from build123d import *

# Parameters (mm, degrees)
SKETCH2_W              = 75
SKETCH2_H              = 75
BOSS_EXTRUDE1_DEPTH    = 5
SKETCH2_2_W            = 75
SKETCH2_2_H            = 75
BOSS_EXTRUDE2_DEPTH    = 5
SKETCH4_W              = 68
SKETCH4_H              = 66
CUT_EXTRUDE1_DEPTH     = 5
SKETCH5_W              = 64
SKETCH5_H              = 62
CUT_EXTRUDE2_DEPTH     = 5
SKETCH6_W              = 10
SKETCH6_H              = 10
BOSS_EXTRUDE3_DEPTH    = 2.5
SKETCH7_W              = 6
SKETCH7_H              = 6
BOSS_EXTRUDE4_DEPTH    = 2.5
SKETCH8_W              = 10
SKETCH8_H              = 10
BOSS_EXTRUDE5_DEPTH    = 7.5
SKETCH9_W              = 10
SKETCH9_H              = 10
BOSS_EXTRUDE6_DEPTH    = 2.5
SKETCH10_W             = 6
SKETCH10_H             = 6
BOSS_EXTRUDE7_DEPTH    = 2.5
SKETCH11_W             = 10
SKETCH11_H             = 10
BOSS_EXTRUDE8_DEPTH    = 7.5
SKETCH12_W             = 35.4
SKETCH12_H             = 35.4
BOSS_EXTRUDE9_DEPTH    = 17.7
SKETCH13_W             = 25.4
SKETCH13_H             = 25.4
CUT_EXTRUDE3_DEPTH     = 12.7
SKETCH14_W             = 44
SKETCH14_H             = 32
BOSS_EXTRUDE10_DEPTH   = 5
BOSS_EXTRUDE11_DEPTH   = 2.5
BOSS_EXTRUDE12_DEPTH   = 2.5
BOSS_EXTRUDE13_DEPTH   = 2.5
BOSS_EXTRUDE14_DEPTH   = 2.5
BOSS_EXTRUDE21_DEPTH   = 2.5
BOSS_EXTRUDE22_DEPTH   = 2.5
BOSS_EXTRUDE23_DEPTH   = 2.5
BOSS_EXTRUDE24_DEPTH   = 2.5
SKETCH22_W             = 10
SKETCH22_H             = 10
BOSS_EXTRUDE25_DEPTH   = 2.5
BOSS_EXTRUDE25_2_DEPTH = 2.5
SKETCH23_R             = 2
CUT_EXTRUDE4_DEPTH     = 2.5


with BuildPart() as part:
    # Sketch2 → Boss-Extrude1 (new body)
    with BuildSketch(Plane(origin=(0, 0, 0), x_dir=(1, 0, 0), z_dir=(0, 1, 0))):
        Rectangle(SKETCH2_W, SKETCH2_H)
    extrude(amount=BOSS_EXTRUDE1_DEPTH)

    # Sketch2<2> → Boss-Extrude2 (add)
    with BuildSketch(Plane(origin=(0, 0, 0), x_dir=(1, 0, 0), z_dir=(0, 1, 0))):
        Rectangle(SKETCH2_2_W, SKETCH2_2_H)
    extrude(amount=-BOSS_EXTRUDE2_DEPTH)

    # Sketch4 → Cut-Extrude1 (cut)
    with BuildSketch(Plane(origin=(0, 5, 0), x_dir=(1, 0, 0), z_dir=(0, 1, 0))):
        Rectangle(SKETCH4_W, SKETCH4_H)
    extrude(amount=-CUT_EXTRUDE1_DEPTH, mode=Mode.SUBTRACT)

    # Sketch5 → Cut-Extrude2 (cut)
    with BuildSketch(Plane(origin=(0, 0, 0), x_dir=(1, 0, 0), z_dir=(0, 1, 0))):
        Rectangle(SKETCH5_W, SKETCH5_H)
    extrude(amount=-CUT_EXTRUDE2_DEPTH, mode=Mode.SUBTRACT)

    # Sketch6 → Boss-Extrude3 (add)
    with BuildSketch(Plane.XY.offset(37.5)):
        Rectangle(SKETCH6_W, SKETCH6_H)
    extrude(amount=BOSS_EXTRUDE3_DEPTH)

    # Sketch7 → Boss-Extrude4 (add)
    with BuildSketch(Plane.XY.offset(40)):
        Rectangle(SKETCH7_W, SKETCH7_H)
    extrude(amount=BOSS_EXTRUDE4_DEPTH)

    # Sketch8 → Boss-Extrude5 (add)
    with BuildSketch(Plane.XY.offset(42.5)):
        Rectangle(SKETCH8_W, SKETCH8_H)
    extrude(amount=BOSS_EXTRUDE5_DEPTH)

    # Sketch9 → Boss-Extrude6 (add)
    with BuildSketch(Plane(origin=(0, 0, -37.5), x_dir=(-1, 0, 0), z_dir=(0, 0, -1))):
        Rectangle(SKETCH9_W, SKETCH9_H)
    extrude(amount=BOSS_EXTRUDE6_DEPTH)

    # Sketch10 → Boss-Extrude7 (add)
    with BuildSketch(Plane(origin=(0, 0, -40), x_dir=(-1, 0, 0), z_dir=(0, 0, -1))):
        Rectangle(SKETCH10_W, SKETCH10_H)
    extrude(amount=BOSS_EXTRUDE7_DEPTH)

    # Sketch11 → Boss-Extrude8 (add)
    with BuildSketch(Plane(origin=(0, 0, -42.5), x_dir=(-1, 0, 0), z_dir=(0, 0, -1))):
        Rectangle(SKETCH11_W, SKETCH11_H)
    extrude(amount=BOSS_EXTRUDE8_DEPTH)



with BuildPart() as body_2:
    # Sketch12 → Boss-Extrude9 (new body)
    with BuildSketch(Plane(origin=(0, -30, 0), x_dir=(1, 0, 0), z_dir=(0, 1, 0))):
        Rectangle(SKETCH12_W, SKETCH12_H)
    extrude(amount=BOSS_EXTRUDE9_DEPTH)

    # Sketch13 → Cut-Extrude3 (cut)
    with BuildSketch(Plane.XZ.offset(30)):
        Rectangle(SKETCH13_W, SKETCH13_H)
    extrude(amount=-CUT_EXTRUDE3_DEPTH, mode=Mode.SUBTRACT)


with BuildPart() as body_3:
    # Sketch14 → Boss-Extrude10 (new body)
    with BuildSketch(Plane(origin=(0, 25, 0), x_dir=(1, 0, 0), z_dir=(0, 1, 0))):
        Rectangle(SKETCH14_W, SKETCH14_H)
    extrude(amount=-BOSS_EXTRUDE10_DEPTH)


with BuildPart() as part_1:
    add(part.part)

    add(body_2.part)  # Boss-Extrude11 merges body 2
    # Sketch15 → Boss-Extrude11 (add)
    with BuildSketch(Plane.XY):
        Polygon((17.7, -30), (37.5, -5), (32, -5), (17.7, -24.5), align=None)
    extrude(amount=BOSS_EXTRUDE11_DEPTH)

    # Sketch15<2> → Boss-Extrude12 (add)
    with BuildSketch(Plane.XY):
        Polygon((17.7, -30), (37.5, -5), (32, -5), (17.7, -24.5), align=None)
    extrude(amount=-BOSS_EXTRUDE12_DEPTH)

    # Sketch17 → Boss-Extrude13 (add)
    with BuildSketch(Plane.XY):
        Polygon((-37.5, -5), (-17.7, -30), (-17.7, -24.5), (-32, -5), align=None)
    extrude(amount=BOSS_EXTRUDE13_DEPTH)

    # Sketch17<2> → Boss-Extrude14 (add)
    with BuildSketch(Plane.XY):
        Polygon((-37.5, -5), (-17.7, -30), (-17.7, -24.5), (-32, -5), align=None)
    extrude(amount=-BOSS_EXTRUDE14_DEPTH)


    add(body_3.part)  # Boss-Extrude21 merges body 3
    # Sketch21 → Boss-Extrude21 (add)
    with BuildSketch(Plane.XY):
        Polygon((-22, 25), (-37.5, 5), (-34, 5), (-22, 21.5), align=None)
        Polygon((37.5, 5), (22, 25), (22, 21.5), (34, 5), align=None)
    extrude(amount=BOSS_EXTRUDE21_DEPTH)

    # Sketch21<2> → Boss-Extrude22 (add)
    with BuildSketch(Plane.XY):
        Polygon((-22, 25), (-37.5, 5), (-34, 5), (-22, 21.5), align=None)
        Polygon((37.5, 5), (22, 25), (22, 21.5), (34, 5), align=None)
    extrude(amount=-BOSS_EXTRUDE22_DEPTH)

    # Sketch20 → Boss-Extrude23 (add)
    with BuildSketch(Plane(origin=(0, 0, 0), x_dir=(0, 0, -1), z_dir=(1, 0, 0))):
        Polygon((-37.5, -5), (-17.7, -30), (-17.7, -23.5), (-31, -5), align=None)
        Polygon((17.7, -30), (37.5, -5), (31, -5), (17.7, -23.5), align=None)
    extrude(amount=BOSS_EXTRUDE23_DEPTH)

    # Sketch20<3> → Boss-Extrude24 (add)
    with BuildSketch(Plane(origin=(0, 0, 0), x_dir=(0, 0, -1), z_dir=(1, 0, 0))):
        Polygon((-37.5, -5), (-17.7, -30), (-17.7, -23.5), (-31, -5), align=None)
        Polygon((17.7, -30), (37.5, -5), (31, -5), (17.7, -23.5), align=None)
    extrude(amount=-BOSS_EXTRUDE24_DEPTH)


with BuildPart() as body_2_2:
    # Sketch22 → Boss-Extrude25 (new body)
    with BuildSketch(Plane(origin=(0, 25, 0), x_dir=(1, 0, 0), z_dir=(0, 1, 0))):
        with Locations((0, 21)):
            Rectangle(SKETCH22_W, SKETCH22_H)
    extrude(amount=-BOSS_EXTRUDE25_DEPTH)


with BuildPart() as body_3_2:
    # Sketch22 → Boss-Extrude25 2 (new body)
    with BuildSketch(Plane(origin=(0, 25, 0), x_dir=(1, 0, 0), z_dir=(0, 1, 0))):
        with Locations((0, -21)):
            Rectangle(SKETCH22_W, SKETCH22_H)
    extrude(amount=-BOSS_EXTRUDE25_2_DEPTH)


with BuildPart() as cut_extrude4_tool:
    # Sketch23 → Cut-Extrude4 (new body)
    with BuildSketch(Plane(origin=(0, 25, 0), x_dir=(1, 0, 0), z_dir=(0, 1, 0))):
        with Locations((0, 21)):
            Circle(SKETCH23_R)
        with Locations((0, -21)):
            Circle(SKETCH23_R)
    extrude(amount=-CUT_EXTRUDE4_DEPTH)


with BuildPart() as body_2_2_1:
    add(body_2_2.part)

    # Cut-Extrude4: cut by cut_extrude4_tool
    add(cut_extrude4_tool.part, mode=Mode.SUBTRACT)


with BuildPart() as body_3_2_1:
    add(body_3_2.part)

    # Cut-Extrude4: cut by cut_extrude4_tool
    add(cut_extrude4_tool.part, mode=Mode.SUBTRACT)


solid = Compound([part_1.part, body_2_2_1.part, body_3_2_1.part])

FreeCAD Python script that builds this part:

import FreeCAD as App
import Part
import Sketcher
from FreeCAD import Vector

doc = App.newDocument("Part")
body = doc.addObject("PartDesign::Body", "Body")

# Sketch on XZ plane
sketch1 = body.newObject("Sketcher::SketchObject", "Sketch")
sketch1.AttachmentSupport = (doc.getObject("XZ_Plane"), [""])
sketch1.MapMode = "FlatFace"
sketch1.addGeometry(Part.LineSegment(Vector(-38, -38, 0), Vector(-38, 38, 0)), False)
sketch1.addGeometry(Part.LineSegment(Vector(-38, 38, 0), Vector(38, 38, 0)), False)
sketch1.addGeometry(Part.LineSegment(Vector(38, 38, 0), Vector(38, -38, 0)), False)
sketch1.addGeometry(Part.LineSegment(Vector(38, -38, 0), Vector(-38, -38, 0)), False)
sketch1.addConstraint(Sketcher.Constraint("Coincident", 0, 2, 1, 1))
sketch1.addConstraint(Sketcher.Constraint("Coincident", 1, 2, 2, 1))
sketch1.addConstraint(Sketcher.Constraint("Coincident", 2, 2, 3, 1))
sketch1.addConstraint(Sketcher.Constraint("Coincident", 3, 2, 0, 1))
sketch1.addConstraint(Sketcher.Constraint("Vertical", 0))
sketch1.addConstraint(Sketcher.Constraint("Horizontal", 1))
sketch1.addConstraint(Sketcher.Constraint("Vertical", 2))
sketch1.addConstraint(Sketcher.Constraint("Horizontal", 3))
sketch1.addConstraint(Sketcher.Constraint("Symmetric", 0, 2, 2, 2, -1, 1))
sketch1.addConstraint(Sketcher.Constraint("Equal", 3, 0))
sketch1.addConstraint(Sketcher.Constraint("DistanceX", 1, 1, 1, 2, 75.0))
pad1 = body.newObject("PartDesign::Pad", "Pad")
pad1.Profile = sketch1
pad1.Length = 5
pad1.Reversed = True

# Sketch on XZ plane
sketch2 = body.newObject("Sketcher::SketchObject", "Sketch001")
sketch2.AttachmentSupport = (doc.getObject("XZ_Plane"), [""])
sketch2.MapMode = "FlatFace"
sketch2.addGeometry(Part.LineSegment(Vector(-38, -38, 0), Vector(-38, 38, 0)), False)
sketch2.addGeometry(Part.LineSegment(Vector(-38, 38, 0), Vector(38, 38, 0)), False)
sketch2.addGeometry(Part.LineSegment(Vector(38, 38, 0), Vector(38, -38, 0)), False)
sketch2.addGeometry(Part.LineSegment(Vector(38, -38, 0), Vector(-38, -38, 0)), False)
sketch2.addConstraint(Sketcher.Constraint("Coincident", 0, 2, 1, 1))
sketch2.addConstraint(Sketcher.Constraint("Coincident", 1, 2, 2, 1))
sketch2.addConstraint(Sketcher.Constraint("Coincident", 2, 2, 3, 1))
sketch2.addConstraint(Sketcher.Constraint("Coincident", 3, 2, 0, 1))
sketch2.addConstraint(Sketcher.Constraint("Vertical", 0))
sketch2.addConstraint(Sketcher.Constraint("Horizontal", 1))
sketch2.addConstraint(Sketcher.Constraint("Vertical", 2))
sketch2.addConstraint(Sketcher.Constraint("Horizontal", 3))
sketch2.addConstraint(Sketcher.Constraint("Symmetric", 0, 2, 2, 2, -1, 1))
sketch2.addConstraint(Sketcher.Constraint("Equal", 3, 0))
sketch2.addConstraint(Sketcher.Constraint("DistanceX", 1, 1, 1, 2, 75.0))
pad2 = body.newObject("PartDesign::Pad", "Pad001")
pad2.Profile = sketch2
pad2.Length = 5

# Sketch on XZ plane
sketch3 = body.newObject("Sketcher::SketchObject", "Sketch002")
sketch3.AttachmentSupport = (doc.getObject("XZ_Plane"), [""])
sketch3.MapMode = "FlatFace"
sketch3.AttachmentOffset = App.Placement(Vector(0, 0, -5), App.Rotation())
sketch3.addGeometry(Part.LineSegment(Vector(-34, -33, 0), Vector(-34, 33, 0)), False)
sketch3.addGeometry(Part.LineSegment(Vector(-34, 33, 0), Vector(34, 33, 0)), False)
sketch3.addGeometry(Part.LineSegment(Vector(34, 33, 0), Vector(34, -33, 0)), False)
sketch3.addGeometry(Part.LineSegment(Vector(34, -33, 0), Vector(-34, -33, 0)), False)
sketch3.addConstraint(Sketcher.Constraint("Coincident", 0, 2, 1, 1))
sketch3.addConstraint(Sketcher.Constraint("Coincident", 1, 2, 2, 1))
sketch3.addConstraint(Sketcher.Constraint("Coincident", 2, 2, 3, 1))
sketch3.addConstraint(Sketcher.Constraint("Coincident", 3, 2, 0, 1))
sketch3.addConstraint(Sketcher.Constraint("Vertical", 0))
sketch3.addConstraint(Sketcher.Constraint("Horizontal", 1))
sketch3.addConstraint(Sketcher.Constraint("Vertical", 2))
sketch3.addConstraint(Sketcher.Constraint("Horizontal", 3))
sketch3.addConstraint(Sketcher.Constraint("Symmetric", 0, 2, 2, 2, -1, 1))
sketch3.addConstraint(Sketcher.Constraint("DistanceX", 1, 1, 1, 2, 68.0))
sketch3.addConstraint(Sketcher.Constraint("DistanceY", 0, 1, 0, 2, 66.0))
pocket1 = body.newObject("PartDesign::Pocket", "Pocket")
pocket1.Profile = sketch3
pocket1.Length = 5
pocket1.Reversed = True

# Sketch on XZ plane
sketch4 = body.newObject("Sketcher::SketchObject", "Sketch003")
sketch4.AttachmentSupport = (doc.getObject("XZ_Plane"), [""])
sketch4.MapMode = "FlatFace"
sketch4.addGeometry(Part.LineSegment(Vector(-32, -31, 0), Vector(-32, 31, 0)), False)
sketch4.addGeometry(Part.LineSegment(Vector(-32, 31, 0), Vector(32, 31, 0)), False)
sketch4.addGeometry(Part.LineSegment(Vector(32, 31, 0), Vector(32, -31, 0)), False)
sketch4.addGeometry(Part.LineSegment(Vector(32, -31, 0), Vector(-32, -31, 0)), False)
sketch4.addConstraint(Sketcher.Constraint("Coincident", 0, 2, 1, 1))
sketch4.addConstraint(Sketcher.Constraint("Coincident", 1, 2, 2, 1))
sketch4.addConstraint(Sketcher.Constraint("Coincident", 2, 2, 3, 1))
sketch4.addConstraint(Sketcher.Constraint("Coincident", 3, 2, 0, 1))
sketch4.addConstraint(Sketcher.Constraint("Vertical", 0))
sketch4.addConstraint(Sketcher.Constraint("Horizontal", 1))
sketch4.addConstraint(Sketcher.Constraint("Vertical", 2))
sketch4.addConstraint(Sketcher.Constraint("Horizontal", 3))
sketch4.addConstraint(Sketcher.Constraint("Symmetric", 0, 2, 2, 2, -1, 1))
sketch4.addConstraint(Sketcher.Constraint("DistanceX", 1, 1, 1, 2, 64.0))
sketch4.addConstraint(Sketcher.Constraint("DistanceY", 0, 1, 0, 2, 62.0))
pocket2 = body.newObject("PartDesign::Pocket", "Pocket001")
pocket2.Profile = sketch4
pocket2.Length = 5
pocket2.Reversed = True

# Sketch on XY plane
sketch5 = body.newObject("Sketcher::SketchObject", "Sketch004")
sketch5.AttachmentSupport = (doc.getObject("XY_Plane"), [""])
sketch5.MapMode = "FlatFace"
sketch5.AttachmentOffset = App.Placement(Vector(0, 0, 37.5), App.Rotation())
sketch5.addGeometry(Part.LineSegment(Vector(-5, 5, 0), Vector(-5, -5, 0)), False)
sketch5.addGeometry(Part.LineSegment(Vector(-5, -5, 0), Vector(5, -5, 0)), False)
sketch5.addGeometry(Part.LineSegment(Vector(5, -5, 0), Vector(5, 5, 0)), False)
sketch5.addGeometry(Part.LineSegment(Vector(5, 5, 0), Vector(-5, 5, 0)), False)
sketch5.addConstraint(Sketcher.Constraint("Coincident", 0, 2, 1, 1))
sketch5.addConstraint(Sketcher.Constraint("Coincident", 1, 2, 2, 1))
sketch5.addConstraint(Sketcher.Constraint("Coincident", 2, 2, 3, 1))
sketch5.addConstraint(Sketcher.Constraint("Coincident", 3, 2, 0, 1))
sketch5.addConstraint(Sketcher.Constraint("Vertical", 0))
sketch5.addConstraint(Sketcher.Constraint("Horizontal", 1))
sketch5.addConstraint(Sketcher.Constraint("Vertical", 2))
sketch5.addConstraint(Sketcher.Constraint("Horizontal", 3))
sketch5.addConstraint(Sketcher.Constraint("Symmetric", 0, 2, 2, 2, -1, 1))
sketch5.addConstraint(Sketcher.Constraint("Equal", 3, 0))
sketch5.addConstraint(Sketcher.Constraint("DistanceX", 1, 1, 1, 2, 10.0))
pad3 = body.newObject("PartDesign::Pad", "Pad002")
pad3.Profile = sketch5
pad3.Length = 2.5

# Sketch on XY plane
sketch6 = body.newObject("Sketcher::SketchObject", "Sketch005")
sketch6.AttachmentSupport = (doc.getObject("XY_Plane"), [""])
sketch6.MapMode = "FlatFace"
sketch6.AttachmentOffset = App.Placement(Vector(0, 0, 40), App.Rotation())
sketch6.addGeometry(Part.LineSegment(Vector(-3, 3, 0), Vector(-3, -3, 0)), False)
sketch6.addGeometry(Part.LineSegment(Vector(-3, -3, 0), Vector(3, -3, 0)), False)
sketch6.addGeometry(Part.LineSegment(Vector(3, -3, 0), Vector(3, 3, 0)), False)
sketch6.addGeometry(Part.LineSegment(Vector(3, 3, 0), Vector(-3, 3, 0)), False)
sketch6.addConstraint(Sketcher.Constraint("Coincident", 0, 2, 1, 1))
sketch6.addConstraint(Sketcher.Constraint("Coincident", 1, 2, 2, 1))
sketch6.addConstraint(Sketcher.Constraint("Coincident", 2, 2, 3, 1))
sketch6.addConstraint(Sketcher.Constraint("Coincident", 3, 2, 0, 1))
sketch6.addConstraint(Sketcher.Constraint("Vertical", 0))
sketch6.addConstraint(Sketcher.Constraint("Horizontal", 1))
sketch6.addConstraint(Sketcher.Constraint("Vertical", 2))
sketch6.addConstraint(Sketcher.Constraint("Horizontal", 3))
sketch6.addConstraint(Sketcher.Constraint("Symmetric", 0, 2, 2, 2, -1, 1))
sketch6.addConstraint(Sketcher.Constraint("Equal", 3, 0))
sketch6.addConstraint(Sketcher.Constraint("DistanceX", 1, 1, 1, 2, 6.0))
pad4 = body.newObject("PartDesign::Pad", "Pad003")
pad4.Profile = sketch6
pad4.Length = 2.5

# Sketch on XY plane
sketch7 = body.newObject("Sketcher::SketchObject", "Sketch006")
sketch7.AttachmentSupport = (doc.getObject("XY_Plane"), [""])
sketch7.MapMode = "FlatFace"
sketch7.AttachmentOffset = App.Placement(Vector(0, 0, 42.5), App.Rotation())
sketch7.addGeometry(Part.LineSegment(Vector(-5, 5, 0), Vector(-5, -5, 0)), False)
sketch7.addGeometry(Part.LineSegment(Vector(-5, -5, 0), Vector(5, -5, 0)), False)
sketch7.addGeometry(Part.LineSegment(Vector(5, -5, 0), Vector(5, 5, 0)), False)
sketch7.addGeometry(Part.LineSegment(Vector(5, 5, 0), Vector(-5, 5, 0)), False)
sketch7.addConstraint(Sketcher.Constraint("Coincident", 0, 2, 1, 1))
sketch7.addConstraint(Sketcher.Constraint("Coincident", 1, 2, 2, 1))
sketch7.addConstraint(Sketcher.Constraint("Coincident", 2, 2, 3, 1))
sketch7.addConstraint(Sketcher.Constraint("Coincident", 3, 2, 0, 1))
sketch7.addConstraint(Sketcher.Constraint("Vertical", 0))
sketch7.addConstraint(Sketcher.Constraint("Horizontal", 1))
sketch7.addConstraint(Sketcher.Constraint("Vertical", 2))
sketch7.addConstraint(Sketcher.Constraint("Horizontal", 3))
sketch7.addConstraint(Sketcher.Constraint("Symmetric", 0, 2, 2, 2, -1, 1))
sketch7.addConstraint(Sketcher.Constraint("Equal", 3, 0))
sketch7.addConstraint(Sketcher.Constraint("DistanceX", 1, 1, 1, 2, 10.0))
pad5 = body.newObject("PartDesign::Pad", "Pad004")
pad5.Profile = sketch7
pad5.Length = 7.5

# Sketch on XY plane
sketch8 = body.newObject("Sketcher::SketchObject", "Sketch007")
sketch8.AttachmentSupport = (doc.getObject("XY_Plane"), [""])
sketch8.MapMode = "FlatFace"
sketch8.AttachmentOffset = App.Placement(Vector(0, 0, -37.5), App.Rotation())
sketch8.addGeometry(Part.LineSegment(Vector(5, 5, 0), Vector(5, -5, 0)), False)
sketch8.addGeometry(Part.LineSegment(Vector(5, -5, 0), Vector(-5, -5, 0)), False)
sketch8.addGeometry(Part.LineSegment(Vector(-5, -5, 0), Vector(-5, 5, 0)), False)
sketch8.addGeometry(Part.LineSegment(Vector(-5, 5, 0), Vector(5, 5, 0)), False)
sketch8.addConstraint(Sketcher.Constraint("Coincident", 0, 2, 1, 1))
sketch8.addConstraint(Sketcher.Constraint("Coincident", 1, 2, 2, 1))
sketch8.addConstraint(Sketcher.Constraint("Coincident", 2, 2, 3, 1))
sketch8.addConstraint(Sketcher.Constraint("Coincident", 3, 2, 0, 1))
sketch8.addConstraint(Sketcher.Constraint("Vertical", 0))
sketch8.addConstraint(Sketcher.Constraint("Horizontal", 1))
sketch8.addConstraint(Sketcher.Constraint("Vertical", 2))
sketch8.addConstraint(Sketcher.Constraint("Horizontal", 3))
sketch8.addConstraint(Sketcher.Constraint("Symmetric", 0, 2, 2, 2, -1, 1))
sketch8.addConstraint(Sketcher.Constraint("Equal", 3, 0))
sketch8.addConstraint(Sketcher.Constraint("DistanceX", 1, 2, 1, 1, 10.0))
pad6 = body.newObject("PartDesign::Pad", "Pad005")
pad6.Profile = sketch8
pad6.Length = 2.5
pad6.Reversed = True

# Sketch on XY plane
sketch9 = body.newObject("Sketcher::SketchObject", "Sketch008")
sketch9.AttachmentSupport = (doc.getObject("XY_Plane"), [""])
sketch9.MapMode = "FlatFace"
sketch9.AttachmentOffset = App.Placement(Vector(0, 0, -40), App.Rotation())
sketch9.addGeometry(Part.LineSegment(Vector(3, 3, 0), Vector(3, -3, 0)), False)
sketch9.addGeometry(Part.LineSegment(Vector(3, -3, 0), Vector(-3, -3, 0)), False)
sketch9.addGeometry(Part.LineSegment(Vector(-3, -3, 0), Vector(-3, 3, 0)), False)
sketch9.addGeometry(Part.LineSegment(Vector(-3, 3, 0), Vector(3, 3, 0)), False)
sketch9.addConstraint(Sketcher.Constraint("Coincident", 0, 2, 1, 1))
sketch9.addConstraint(Sketcher.Constraint("Coincident", 1, 2, 2, 1))
sketch9.addConstraint(Sketcher.Constraint("Coincident", 2, 2, 3, 1))
sketch9.addConstraint(Sketcher.Constraint("Coincident", 3, 2, 0, 1))
sketch9.addConstraint(Sketcher.Constraint("Vertical", 0))
sketch9.addConstraint(Sketcher.Constraint("Horizontal", 1))
sketch9.addConstraint(Sketcher.Constraint("Vertical", 2))
sketch9.addConstraint(Sketcher.Constraint("Horizontal", 3))
sketch9.addConstraint(Sketcher.Constraint("Symmetric", 0, 2, 2, 2, -1, 1))
sketch9.addConstraint(Sketcher.Constraint("Equal", 3, 0))
sketch9.addConstraint(Sketcher.Constraint("DistanceX", 1, 2, 1, 1, 6.0))
pad7 = body.newObject("PartDesign::Pad", "Pad006")
pad7.Profile = sketch9
pad7.Length = 2.5
pad7.Reversed = True

# Sketch on XY plane
sketch10 = body.newObject("Sketcher::SketchObject", "Sketch009")
sketch10.AttachmentSupport = (doc.getObject("XY_Plane"), [""])
sketch10.MapMode = "FlatFace"
sketch10.AttachmentOffset = App.Placement(Vector(0, 0, -42.5), App.Rotation())
sketch10.addGeometry(Part.LineSegment(Vector(5, 5, 0), Vector(5, -5, 0)), False)
sketch10.addGeometry(Part.LineSegment(Vector(5, -5, 0), Vector(-5, -5, 0)), False)
sketch10.addGeometry(Part.LineSegment(Vector(-5, -5, 0), Vector(-5, 5, 0)), False)
sketch10.addGeometry(Part.LineSegment(Vector(-5, 5, 0), Vector(5, 5, 0)), False)
sketch10.addConstraint(Sketcher.Constraint("Coincident", 0, 2, 1, 1))
sketch10.addConstraint(Sketcher.Constraint("Coincident", 1, 2, 2, 1))
sketch10.addConstraint(Sketcher.Constraint("Coincident", 2, 2, 3, 1))
sketch10.addConstraint(Sketcher.Constraint("Coincident", 3, 2, 0, 1))
sketch10.addConstraint(Sketcher.Constraint("Vertical", 0))
sketch10.addConstraint(Sketcher.Constraint("Horizontal", 1))
sketch10.addConstraint(Sketcher.Constraint("Vertical", 2))
sketch10.addConstraint(Sketcher.Constraint("Horizontal", 3))
sketch10.addConstraint(Sketcher.Constraint("Symmetric", 0, 2, 2, 2, -1, 1))
sketch10.addConstraint(Sketcher.Constraint("Equal", 3, 0))
sketch10.addConstraint(Sketcher.Constraint("DistanceX", 1, 2, 1, 1, 10.0))
pad8 = body.newObject("PartDesign::Pad", "Pad007")
pad8.Profile = sketch10
pad8.Length = 7.5
pad8.Reversed = True
body2 = doc.addObject("PartDesign::Body", "Body001")

# Sketch on XZ plane
sketch11 = body2.newObject("Sketcher::SketchObject", "Sketch010")
sketch11.AttachmentSupport = (doc.getObject("XZ_Plane001"), [""])
sketch11.MapMode = "FlatFace"
sketch11.AttachmentOffset = App.Placement(Vector(0, 0, 30), App.Rotation())
sketch11.addGeometry(Part.LineSegment(Vector(-18, -18, 0), Vector(-18, 18, 0)), False)
sketch11.addGeometry(Part.LineSegment(Vector(-18, 18, 0), Vector(18, 18, 0)), False)
sketch11.addGeometry(Part.LineSegment(Vector(18, 18, 0), Vector(18, -18, 0)), False)
sketch11.addGeometry(Part.LineSegment(Vector(18, -18, 0), Vector(-18, -18, 0)), False)
sketch11.addConstraint(Sketcher.Constraint("Coincident", 0, 2, 1, 1))
sketch11.addConstraint(Sketcher.Constraint("Coincident", 1, 2, 2, 1))
sketch11.addConstraint(Sketcher.Constraint("Coincident", 2, 2, 3, 1))
sketch11.addConstraint(Sketcher.Constraint("Coincident", 3, 2, 0, 1))
sketch11.addConstraint(Sketcher.Constraint("Vertical", 0))
sketch11.addConstraint(Sketcher.Constraint("Horizontal", 1))
sketch11.addConstraint(Sketcher.Constraint("Vertical", 2))
sketch11.addConstraint(Sketcher.Constraint("Horizontal", 3))
sketch11.addConstraint(Sketcher.Constraint("Symmetric", 0, 2, 2, 2, -1, 1))
sketch11.addConstraint(Sketcher.Constraint("Equal", 3, 0))
sketch11.addConstraint(Sketcher.Constraint("DistanceX", 1, 1, 1, 2, 35.4))
pad9 = body2.newObject("PartDesign::Pad", "Pad008")
pad9.Profile = sketch11
pad9.Length = 17.7
pad9.Reversed = True

# Sketch on XZ plane
sketch12 = body2.newObject("Sketcher::SketchObject", "Sketch011")
sketch12.AttachmentSupport = (doc.getObject("XZ_Plane001"), [""])
sketch12.MapMode = "FlatFace"
sketch12.AttachmentOffset = App.Placement(Vector(0, 0, 30), App.Rotation())
sketch12.addGeometry(Part.LineSegment(Vector(-13, 13, 0), Vector(-13, -13, 0)), False)
sketch12.addGeometry(Part.LineSegment(Vector(-13, -13, 0), Vector(13, -13, 0)), False)
sketch12.addGeometry(Part.LineSegment(Vector(13, -13, 0), Vector(13, 13, 0)), False)
sketch12.addGeometry(Part.LineSegment(Vector(13, 13, 0), Vector(-13, 13, 0)), False)
sketch12.addConstraint(Sketcher.Constraint("Coincident", 0, 2, 1, 1))
sketch12.addConstraint(Sketcher.Constraint("Coincident", 1, 2, 2, 1))
sketch12.addConstraint(Sketcher.Constraint("Coincident", 2, 2, 3, 1))
sketch12.addConstraint(Sketcher.Constraint("Coincident", 3, 2, 0, 1))
sketch12.addConstraint(Sketcher.Constraint("Vertical", 0))
sketch12.addConstraint(Sketcher.Constraint("Horizontal", 1))
sketch12.addConstraint(Sketcher.Constraint("Vertical", 2))
sketch12.addConstraint(Sketcher.Constraint("Horizontal", 3))
sketch12.addConstraint(Sketcher.Constraint("Symmetric", 0, 2, 2, 2, -1, 1))
sketch12.addConstraint(Sketcher.Constraint("Equal", 3, 0))
sketch12.addConstraint(Sketcher.Constraint("DistanceX", 1, 1, 1, 2, 25.4))
pocket3 = body2.newObject("PartDesign::Pocket", "Pocket002")
pocket3.Profile = sketch12
pocket3.Length = 12.7
body3 = doc.addObject("PartDesign::Body", "Body002")

# Sketch on XZ plane
sketch13 = body3.newObject("Sketcher::SketchObject", "Sketch012")
sketch13.AttachmentSupport = (doc.getObject("XZ_Plane002"), [""])
sketch13.MapMode = "FlatFace"
sketch13.AttachmentOffset = App.Placement(Vector(0, 0, -25), App.Rotation())
sketch13.addGeometry(Part.LineSegment(Vector(-22, -16, 0), Vector(-22, 16, 0)), False)
sketch13.addGeometry(Part.LineSegment(Vector(-22, 16, 0), Vector(22, 16, 0)), False)
sketch13.addGeometry(Part.LineSegment(Vector(22, 16, 0), Vector(22, -16, 0)), False)
sketch13.addGeometry(Part.LineSegment(Vector(22, -16, 0), Vector(-22, -16, 0)), False)
sketch13.addConstraint(Sketcher.Constraint("Coincident", 0, 2, 1, 1))
sketch13.addConstraint(Sketcher.Constraint("Coincident", 1, 2, 2, 1))
sketch13.addConstraint(Sketcher.Constraint("Coincident", 2, 2, 3, 1))
sketch13.addConstraint(Sketcher.Constraint("Coincident", 3, 2, 0, 1))
sketch13.addConstraint(Sketcher.Constraint("Vertical", 0))
sketch13.addConstraint(Sketcher.Constraint("Horizontal", 1))
sketch13.addConstraint(Sketcher.Constraint("Vertical", 2))
sketch13.addConstraint(Sketcher.Constraint("Horizontal", 3))
sketch13.addConstraint(Sketcher.Constraint("Symmetric", 0, 2, 2, 2, -1, 1))
sketch13.addConstraint(Sketcher.Constraint("DistanceX", 1, 1, 1, 2, 44.0))
sketch13.addConstraint(Sketcher.Constraint("DistanceY", 0, 1, 0, 2, 32.0))
pad10 = body3.newObject("PartDesign::Pad", "Pad009")
pad10.Profile = sketch13
pad10.Length = 5
body.AllowCompound = True
doc.recompute()

boolean = body.newObject("PartDesign::Boolean", "Boolean")
boolean.Type = "Fuse"
boolean.addObjects([body2])

# Sketch on XY plane
sketch14 = body.newObject("Sketcher::SketchObject", "Sketch013")
sketch14.AttachmentSupport = (doc.getObject("XY_Plane"), [""])
sketch14.MapMode = "FlatFace"
sketch14.addGeometry(Part.LineSegment(Vector(18, -30, 0), Vector(38, -5, 0)), False)
sketch14.addGeometry(Part.LineSegment(Vector(38, -5, 0), Vector(32, -5, 0)), False)
sketch14.addGeometry(Part.LineSegment(Vector(32, -5, 0), Vector(18, -24, 0)), False)
sketch14.addGeometry(Part.LineSegment(Vector(18, -24, 0), Vector(18, -30, 0)), False)
sketch14.addConstraint(Sketcher.Constraint("Coincident", 0, 2, 1, 1))
sketch14.addConstraint(Sketcher.Constraint("Coincident", 1, 2, 2, 1))
sketch14.addConstraint(Sketcher.Constraint("Coincident", 2, 2, 3, 1))
sketch14.addConstraint(Sketcher.Constraint("Coincident", 3, 2, 0, 1))
sketch14.addConstraint(Sketcher.Constraint("Horizontal", 1))
sketch14.addConstraint(Sketcher.Constraint("Vertical", 3))
sketch14.addConstraint(Sketcher.Constraint("Equal", 1, 3))
sketch14.addConstraint(Sketcher.Constraint("DistanceX", 1, 2, 1, 1, 5.5))
sketch14.addConstraint(Sketcher.Constraint("DistanceY", 0, 2, -1, 1, 5.0))
sketch14.addConstraint(Sketcher.Constraint("DistanceX", -1, 1, 1, 2, 32.0))
sketch14.addConstraint(Sketcher.Constraint("DistanceY", 3, 2, -1, 1, 30.0))
sketch14.addConstraint(Sketcher.Constraint("DistanceX", -1, 1, 2, 2, 17.7))
pad11 = body.newObject("PartDesign::Pad", "Pad010")
pad11.Profile = sketch14
pad11.Length = 2.5

# Sketch on XY plane
sketch15 = body.newObject("Sketcher::SketchObject", "Sketch014")
sketch15.AttachmentSupport = (doc.getObject("XY_Plane"), [""])
sketch15.MapMode = "FlatFace"
sketch15.addGeometry(Part.LineSegment(Vector(18, -30, 0), Vector(38, -5, 0)), False)
sketch15.addGeometry(Part.LineSegment(Vector(38, -5, 0), Vector(32, -5, 0)), False)
sketch15.addGeometry(Part.LineSegment(Vector(32, -5, 0), Vector(18, -24, 0)), False)
sketch15.addGeometry(Part.LineSegment(Vector(18, -24, 0), Vector(18, -30, 0)), False)
sketch15.addConstraint(Sketcher.Constraint("Coincident", 0, 2, 1, 1))
sketch15.addConstraint(Sketcher.Constraint("Coincident", 1, 2, 2, 1))
sketch15.addConstraint(Sketcher.Constraint("Coincident", 2, 2, 3, 1))
sketch15.addConstraint(Sketcher.Constraint("Coincident", 3, 2, 0, 1))
sketch15.addConstraint(Sketcher.Constraint("Horizontal", 1))
sketch15.addConstraint(Sketcher.Constraint("Vertical", 3))
sketch15.addConstraint(Sketcher.Constraint("Equal", 1, 3))
sketch15.addConstraint(Sketcher.Constraint("DistanceX", 1, 2, 1, 1, 5.5))
sketch15.addConstraint(Sketcher.Constraint("DistanceY", 0, 2, -1, 1, 5.0))
sketch15.addConstraint(Sketcher.Constraint("DistanceX", -1, 1, 1, 2, 32.0))
sketch15.addConstraint(Sketcher.Constraint("DistanceY", 3, 2, -1, 1, 30.0))
sketch15.addConstraint(Sketcher.Constraint("DistanceX", -1, 1, 2, 2, 17.7))
pad12 = body.newObject("PartDesign::Pad", "Pad011")
pad12.Profile = sketch15
pad12.Length = 2.5
pad12.Reversed = True

# Sketch on XY plane
sketch16 = body.newObject("Sketcher::SketchObject", "Sketch015")
sketch16.AttachmentSupport = (doc.getObject("XY_Plane"), [""])
sketch16.MapMode = "FlatFace"
sketch16.addGeometry(Part.LineSegment(Vector(-38, -5, 0), Vector(-18, -30, 0)), False)
sketch16.addGeometry(Part.LineSegment(Vector(-18, -30, 0), Vector(-18, -24, 0)), False)
sketch16.addGeometry(Part.LineSegment(Vector(-18, -24, 0), Vector(-32, -5, 0)), False)
sketch16.addGeometry(Part.LineSegment(Vector(-32, -5, 0), Vector(-38, -5, 0)), False)
sketch16.addConstraint(Sketcher.Constraint("Coincident", 0, 2, 1, 1))
sketch16.addConstraint(Sketcher.Constraint("Coincident", 1, 2, 2, 1))
sketch16.addConstraint(Sketcher.Constraint("Coincident", 2, 2, 3, 1))
sketch16.addConstraint(Sketcher.Constraint("Coincident", 3, 2, 0, 1))
sketch16.addConstraint(Sketcher.Constraint("Vertical", 1))
sketch16.addConstraint(Sketcher.Constraint("Horizontal", 3))
sketch16.addConstraint(Sketcher.Constraint("Equal", 3, 1))
sketch16.addConstraint(Sketcher.Constraint("DistanceX", 3, 2, 3, 1, 5.5))
sketch16.addConstraint(Sketcher.Constraint("DistanceY", 0, 2, -1, 1, 30.0))
sketch16.addConstraint(Sketcher.Constraint("DistanceX", 2, 2, -1, 1, 32.0))
sketch16.addConstraint(Sketcher.Constraint("DistanceY", 2, 2, -1, 1, 5.0))
sketch16.addConstraint(Sketcher.Constraint("DistanceX", 0, 2, -1, 1, 17.7))
pad13 = body.newObject("PartDesign::Pad", "Pad012")
pad13.Profile = sketch16
pad13.Length = 2.5

# Sketch on XY plane
sketch17 = body.newObject("Sketcher::SketchObject", "Sketch016")
sketch17.AttachmentSupport = (doc.getObject("XY_Plane"), [""])
sketch17.MapMode = "FlatFace"
sketch17.addGeometry(Part.LineSegment(Vector(-38, -5, 0), Vector(-18, -30, 0)), False)
sketch17.addGeometry(Part.LineSegment(Vector(-18, -30, 0), Vector(-18, -24, 0)), False)
sketch17.addGeometry(Part.LineSegment(Vector(-18, -24, 0), Vector(-32, -5, 0)), False)
sketch17.addGeometry(Part.LineSegment(Vector(-32, -5, 0), Vector(-38, -5, 0)), False)
sketch17.addConstraint(Sketcher.Constraint("Coincident", 0, 2, 1, 1))
sketch17.addConstraint(Sketcher.Constraint("Coincident", 1, 2, 2, 1))
sketch17.addConstraint(Sketcher.Constraint("Coincident", 2, 2, 3, 1))
sketch17.addConstraint(Sketcher.Constraint("Coincident", 3, 2, 0, 1))
sketch17.addConstraint(Sketcher.Constraint("Vertical", 1))
sketch17.addConstraint(Sketcher.Constraint("Horizontal", 3))
sketch17.addConstraint(Sketcher.Constraint("Equal", 3, 1))
sketch17.addConstraint(Sketcher.Constraint("DistanceX", 3, 2, 3, 1, 5.5))
sketch17.addConstraint(Sketcher.Constraint("DistanceY", 0, 2, -1, 1, 30.0))
sketch17.addConstraint(Sketcher.Constraint("DistanceX", 2, 2, -1, 1, 32.0))
sketch17.addConstraint(Sketcher.Constraint("DistanceY", 2, 2, -1, 1, 5.0))
sketch17.addConstraint(Sketcher.Constraint("DistanceX", 0, 2, -1, 1, 17.7))
pad14 = body.newObject("PartDesign::Pad", "Pad013")
pad14.Profile = sketch17
pad14.Length = 2.5
pad14.Reversed = True
doc.recompute()

boolean2 = body.newObject("PartDesign::Boolean", "Boolean001")
boolean2.Type = "Fuse"
boolean2.addObjects([body3])

# Sketch on XY plane
sketch18 = body.newObject("Sketcher::SketchObject", "Sketch017")
sketch18.AttachmentSupport = (doc.getObject("XY_Plane"), [""])
sketch18.MapMode = "FlatFace"
sketch18.addGeometry(Part.LineSegment(Vector(-22, 25, 0), Vector(-37.5, 5, 0)), False)
sketch18.addGeometry(Part.LineSegment(Vector(-37.5, 5, 0), Vector(-34, 5, 0)), False)
sketch18.addGeometry(Part.LineSegment(Vector(-34, 5, 0), Vector(-22, 21.5, 0)), False)
sketch18.addGeometry(Part.LineSegment(Vector(-22, 21.5, 0), Vector(-22, 25, 0)), False)
sketch18.addGeometry(Part.LineSegment(Vector(37.5, 5, 0), Vector(22, 25, 0)), False)
sketch18.addGeometry(Part.LineSegment(Vector(22, 25, 0), Vector(22, 21.5, 0)), False)
sketch18.addGeometry(Part.LineSegment(Vector(22, 21.5, 0), Vector(34, 5, 0)), False)
sketch18.addGeometry(Part.LineSegment(Vector(34, 5, 0), Vector(37.5, 5, 0)), False)
sketch18.addConstraint(Sketcher.Constraint("Coincident", 0, 2, 1, 1))
sketch18.addConstraint(Sketcher.Constraint("Coincident", 1, 2, 2, 1))
sketch18.addConstraint(Sketcher.Constraint("Coincident", 2, 2, 3, 1))
sketch18.addConstraint(Sketcher.Constraint("Coincident", 3, 2, 0, 1))
sketch18.addConstraint(Sketcher.Constraint("Coincident", 4, 2, 5, 1))
sketch18.addConstraint(Sketcher.Constraint("Coincident", 5, 2, 6, 1))
sketch18.addConstraint(Sketcher.Constraint("Coincident", 6, 2, 7, 1))
sketch18.addConstraint(Sketcher.Constraint("Coincident", 7, 2, 4, 1))
sketch18.addConstraint(Sketcher.Constraint("Horizontal", 1))
sketch18.addConstraint(Sketcher.Constraint("Vertical", 3))
sketch18.addConstraint(Sketcher.Constraint("Vertical", 5))
sketch18.addConstraint(Sketcher.Constraint("Horizontal", 7))
sketch18.addConstraint(Sketcher.Constraint("Symmetric", 3, 2, 4, 2, -2))
sketch18.addConstraint(Sketcher.Constraint("Symmetric", 1, 2, 6, 2, -2))
sketch18.addConstraint(Sketcher.Constraint("Horizontal", 2, 2, 5, 2))
sketch18.addConstraint(Sketcher.Constraint("Equal", 1, 7))
sketch18.addConstraint(Sketcher.Constraint("Equal", 7, 3))
sketch18.addConstraint(Sketcher.Constraint("DistanceX", 1, 1, 1, 2, 3.5))
sketch18.addConstraint(Sketcher.Constraint("DistanceY", -1, 1, 0, 2, 5.0))
sketch18.addConstraint(Sketcher.Constraint("DistanceX", 1, 2, -1, 1, 34.0))
sketch18.addConstraint(Sketcher.Constraint("DistanceX", 2, 2, -1, 1, 22.0))
sketch18.addConstraint(Sketcher.Constraint("DistanceY", -1, 1, 3, 2, 25.0))
pad15 = body.newObject("PartDesign::Pad", "Pad014")
pad15.Profile = sketch18
pad15.Length = 2.5

# Sketch on XY plane
sketch19 = body.newObject("Sketcher::SketchObject", "Sketch018")
sketch19.AttachmentSupport = (doc.getObject("XY_Plane"), [""])
sketch19.MapMode = "FlatFace"
sketch19.addGeometry(Part.LineSegment(Vector(-22, 25, 0), Vector(-37.5, 5, 0)), False)
sketch19.addGeometry(Part.LineSegment(Vector(-37.5, 5, 0), Vector(-34, 5, 0)), False)
sketch19.addGeometry(Part.LineSegment(Vector(-34, 5, 0), Vector(-22, 21.5, 0)), False)
sketch19.addGeometry(Part.LineSegment(Vector(-22, 21.5, 0), Vector(-22, 25, 0)), False)
sketch19.addGeometry(Part.LineSegment(Vector(37.5, 5, 0), Vector(22, 25, 0)), False)
sketch19.addGeometry(Part.LineSegment(Vector(22, 25, 0), Vector(22, 21.5, 0)), False)
sketch19.addGeometry(Part.LineSegment(Vector(22, 21.5, 0), Vector(34, 5, 0)), False)
sketch19.addGeometry(Part.LineSegment(Vector(34, 5, 0), Vector(37.5, 5, 0)), False)
sketch19.addConstraint(Sketcher.Constraint("Coincident", 0, 2, 1, 1))
sketch19.addConstraint(Sketcher.Constraint("Coincident", 1, 2, 2, 1))
sketch19.addConstraint(Sketcher.Constraint("Coincident", 2, 2, 3, 1))
sketch19.addConstraint(Sketcher.Constraint("Coincident", 3, 2, 0, 1))
sketch19.addConstraint(Sketcher.Constraint("Coincident", 4, 2, 5, 1))
sketch19.addConstraint(Sketcher.Constraint("Coincident", 5, 2, 6, 1))
sketch19.addConstraint(Sketcher.Constraint("Coincident", 6, 2, 7, 1))
sketch19.addConstraint(Sketcher.Constraint("Coincident", 7, 2, 4, 1))
sketch19.addConstraint(Sketcher.Constraint("Horizontal", 1))
sketch19.addConstraint(Sketcher.Constraint("Vertical", 3))
sketch19.addConstraint(Sketcher.Constraint("Vertical", 5))
sketch19.addConstraint(Sketcher.Constraint("Horizontal", 7))
sketch19.addConstraint(Sketcher.Constraint("Symmetric", 3, 2, 4, 2, -2))
sketch19.addConstraint(Sketcher.Constraint("Symmetric", 1, 2, 6, 2, -2))
sketch19.addConstraint(Sketcher.Constraint("Horizontal", 2, 2, 5, 2))
sketch19.addConstraint(Sketcher.Constraint("Equal", 1, 7))
sketch19.addConstraint(Sketcher.Constraint("Equal", 7, 3))
sketch19.addConstraint(Sketcher.Constraint("DistanceX", 1, 1, 1, 2, 3.5))
sketch19.addConstraint(Sketcher.Constraint("DistanceY", -1, 1, 0, 2, 5.0))
sketch19.addConstraint(Sketcher.Constraint("DistanceX", 1, 2, -1, 1, 34.0))
sketch19.addConstraint(Sketcher.Constraint("DistanceX", 2, 2, -1, 1, 22.0))
sketch19.addConstraint(Sketcher.Constraint("DistanceY", -1, 1, 3, 2, 25.0))
pad16 = body.newObject("PartDesign::Pad", "Pad015")
pad16.Profile = sketch19
pad16.Length = 2.5
pad16.Reversed = True

# Sketch on YZ plane
sketch20 = body.newObject("Sketcher::SketchObject", "Sketch019")
sketch20.AttachmentSupport = (doc.getObject("YZ_Plane"), [""])
sketch20.MapMode = "FlatFace"
sketch20.addGeometry(Part.LineSegment(Vector(-5, 38, 0), Vector(-30, 18, 0)), False)
sketch20.addGeometry(Part.LineSegment(Vector(-30, 18, 0), Vector(-24, 18, 0)), False)
sketch20.addGeometry(Part.LineSegment(Vector(-24, 18, 0), Vector(-5, 31, 0)), False)
sketch20.addGeometry(Part.LineSegment(Vector(-5, 31, 0), Vector(-5, 38, 0)), False)
sketch20.addGeometry(Part.LineSegment(Vector(-30, -18, 0), Vector(-5, -38, 0)), False)
sketch20.addGeometry(Part.LineSegment(Vector(-5, -38, 0), Vector(-5, -31, 0)), False)
sketch20.addGeometry(Part.LineSegment(Vector(-5, -31, 0), Vector(-24, -18, 0)), False)
sketch20.addGeometry(Part.LineSegment(Vector(-24, -18, 0), Vector(-30, -18, 0)), False)
sketch20.addConstraint(Sketcher.Constraint("Coincident", 0, 2, 1, 1))
sketch20.addConstraint(Sketcher.Constraint("Coincident", 1, 2, 2, 1))
sketch20.addConstraint(Sketcher.Constraint("Coincident", 2, 2, 3, 1))
sketch20.addConstraint(Sketcher.Constraint("Coincident", 3, 2, 0, 1))
sketch20.addConstraint(Sketcher.Constraint("Coincident", 4, 2, 5, 1))
sketch20.addConstraint(Sketcher.Constraint("Coincident", 5, 2, 6, 1))
sketch20.addConstraint(Sketcher.Constraint("Coincident", 6, 2, 7, 1))
sketch20.addConstraint(Sketcher.Constraint("Coincident", 7, 2, 4, 1))
sketch20.addConstraint(Sketcher.Constraint("Horizontal", 1))
sketch20.addConstraint(Sketcher.Constraint("Vertical", 3))
sketch20.addConstraint(Sketcher.Constraint("Vertical", 5))
sketch20.addConstraint(Sketcher.Constraint("Horizontal", 7))
sketch20.addConstraint(Sketcher.Constraint("Symmetric", 3, 2, 4, 2, -1))
sketch20.addConstraint(Sketcher.Constraint("Symmetric", 1, 2, 6, 2, -1))
sketch20.addConstraint(Sketcher.Constraint("Vertical", 0, 2, 7, 2))
sketch20.addConstraint(Sketcher.Constraint("Equal", 7, 3))
sketch20.addConstraint(Sketcher.Constraint("Equal", 3, 5))
sketch20.addConstraint(Sketcher.Constraint("DistanceX", 1, 1, 1, 2, 6.5))
sketch20.addConstraint(Sketcher.Constraint("DistanceX", 0, 2, -1, 1, 30.0))
sketch20.addConstraint(Sketcher.Constraint("DistanceX", 2, 2, -1, 1, 5.0))
sketch20.addConstraint(Sketcher.Constraint("DistanceY", -1, 1, 2, 2, 31.0))
sketch20.addConstraint(Sketcher.Constraint("DistanceY", -1, 1, 0, 2, 17.7))
pad17 = body.newObject("PartDesign::Pad", "Pad016")
pad17.Profile = sketch20
pad17.Length = 2.5

# Sketch on YZ plane
sketch21 = body.newObject("Sketcher::SketchObject", "Sketch020")
sketch21.AttachmentSupport = (doc.getObject("YZ_Plane"), [""])
sketch21.MapMode = "FlatFace"
sketch21.addGeometry(Part.LineSegment(Vector(-5, 38, 0), Vector(-30, 18, 0)), False)
sketch21.addGeometry(Part.LineSegment(Vector(-30, 18, 0), Vector(-24, 18, 0)), False)
sketch21.addGeometry(Part.LineSegment(Vector(-24, 18, 0), Vector(-5, 31, 0)), False)
sketch21.addGeometry(Part.LineSegment(Vector(-5, 31, 0), Vector(-5, 38, 0)), False)
sketch21.addGeometry(Part.LineSegment(Vector(-30, -18, 0), Vector(-5, -38, 0)), False)
sketch21.addGeometry(Part.LineSegment(Vector(-5, -38, 0), Vector(-5, -31, 0)), False)
sketch21.addGeometry(Part.LineSegment(Vector(-5, -31, 0), Vector(-24, -18, 0)), False)
sketch21.addGeometry(Part.LineSegment(Vector(-24, -18, 0), Vector(-30, -18, 0)), False)
sketch21.addConstraint(Sketcher.Constraint("Coincident", 0, 2, 1, 1))
sketch21.addConstraint(Sketcher.Constraint("Coincident", 1, 2, 2, 1))
sketch21.addConstraint(Sketcher.Constraint("Coincident", 2, 2, 3, 1))
sketch21.addConstraint(Sketcher.Constraint("Coincident", 3, 2, 0, 1))
sketch21.addConstraint(Sketcher.Constraint("Coincident", 4, 2, 5, 1))
sketch21.addConstraint(Sketcher.Constraint("Coincident", 5, 2, 6, 1))
sketch21.addConstraint(Sketcher.Constraint("Coincident", 6, 2, 7, 1))
sketch21.addConstraint(Sketcher.Constraint("Coincident", 7, 2, 4, 1))
sketch21.addConstraint(Sketcher.Constraint("Horizontal", 1))
sketch21.addConstraint(Sketcher.Constraint("Vertical", 3))
sketch21.addConstraint(Sketcher.Constraint("Vertical", 5))
sketch21.addConstraint(Sketcher.Constraint("Horizontal", 7))
sketch21.addConstraint(Sketcher.Constraint("Symmetric", 3, 2, 4, 2, -1))
sketch21.addConstraint(Sketcher.Constraint("Symmetric", 1, 2, 6, 2, -1))
sketch21.addConstraint(Sketcher.Constraint("Vertical", 0, 2, 7, 2))
sketch21.addConstraint(Sketcher.Constraint("Equal", 7, 3))
sketch21.addConstraint(Sketcher.Constraint("Equal", 3, 5))
sketch21.addConstraint(Sketcher.Constraint("DistanceX", 1, 1, 1, 2, 6.5))
sketch21.addConstraint(Sketcher.Constraint("DistanceX", 0, 2, -1, 1, 30.0))
sketch21.addConstraint(Sketcher.Constraint("DistanceX", 2, 2, -1, 1, 5.0))
sketch21.addConstraint(Sketcher.Constraint("DistanceY", -1, 1, 2, 2, 31.0))
sketch21.addConstraint(Sketcher.Constraint("DistanceY", -1, 1, 0, 2, 17.7))
pad18 = body.newObject("PartDesign::Pad", "Pad017")
pad18.Profile = sketch21
pad18.Length = 2.5
pad18.Reversed = True
body4 = doc.addObject("PartDesign::Body", "Body003")

# Sketch on XZ plane
sketch22 = body4.newObject("Sketcher::SketchObject", "Sketch021")
sketch22.AttachmentSupport = (doc.getObject("XZ_Plane003"), [""])
sketch22.MapMode = "FlatFace"
sketch22.AttachmentOffset = App.Placement(Vector(0, 0, -25), App.Rotation())
sketch22.addGeometry(Part.LineSegment(Vector(-5, -26, 0), Vector(-5, -16, 0)), False)
sketch22.addGeometry(Part.LineSegment(Vector(-5, -16, 0), Vector(5, -16, 0)), False)
sketch22.addGeometry(Part.LineSegment(Vector(5, -16, 0), Vector(5, -26, 0)), False)
sketch22.addGeometry(Part.LineSegment(Vector(5, -26, 0), Vector(-5, -26, 0)), False)
sketch22.addConstraint(Sketcher.Constraint("Coincident", 0, 2, 1, 1))
sketch22.addConstraint(Sketcher.Constraint("Coincident", 1, 2, 2, 1))
sketch22.addConstraint(Sketcher.Constraint("Coincident", 2, 2, 3, 1))
sketch22.addConstraint(Sketcher.Constraint("Coincident", 3, 2, 0, 1))
sketch22.addConstraint(Sketcher.Constraint("Vertical", 0))
sketch22.addConstraint(Sketcher.Constraint("Horizontal", 1))
sketch22.addConstraint(Sketcher.Constraint("Vertical", 2))
sketch22.addConstraint(Sketcher.Constraint("Horizontal", 3))
sketch22.addConstraint(Sketcher.Constraint("Equal", 3, 0))
sketch22.addConstraint(Sketcher.Constraint("DistanceX", 1, 1, 1, 2, 10.0))
sketch22.addConstraint(Sketcher.Constraint("DistanceX", 0, 2, -1, 1, 5.0))
sketch22.addConstraint(Sketcher.Constraint("DistanceY", 0, 2, -1, 1, 16.0))
pad19 = body4.newObject("PartDesign::Pad", "Pad018")
pad19.Profile = sketch22
pad19.Length = 2.5
body5 = doc.addObject("PartDesign::Body", "Body004")

# Sketch on XZ plane
sketch23 = body5.newObject("Sketcher::SketchObject", "Sketch022")
sketch23.AttachmentSupport = (doc.getObject("XZ_Plane004"), [""])
sketch23.MapMode = "FlatFace"
sketch23.AttachmentOffset = App.Placement(Vector(0, 0, -25), App.Rotation())
sketch23.addGeometry(Part.LineSegment(Vector(-5, 16, 0), Vector(-5, 26, 0)), False)
sketch23.addGeometry(Part.LineSegment(Vector(-5, 26, 0), Vector(5, 26, 0)), False)
sketch23.addGeometry(Part.LineSegment(Vector(5, 26, 0), Vector(5, 16, 0)), False)
sketch23.addGeometry(Part.LineSegment(Vector(5, 16, 0), Vector(-5, 16, 0)), False)
sketch23.addConstraint(Sketcher.Constraint("Coincident", 0, 2, 1, 1))
sketch23.addConstraint(Sketcher.Constraint("Coincident", 1, 2, 2, 1))
sketch23.addConstraint(Sketcher.Constraint("Coincident", 2, 2, 3, 1))
sketch23.addConstraint(Sketcher.Constraint("Coincident", 3, 2, 0, 1))
sketch23.addConstraint(Sketcher.Constraint("Vertical", 0))
sketch23.addConstraint(Sketcher.Constraint("Horizontal", 1))
sketch23.addConstraint(Sketcher.Constraint("Vertical", 2))
sketch23.addConstraint(Sketcher.Constraint("Horizontal", 3))
sketch23.addConstraint(Sketcher.Constraint("Equal", 3, 0))
sketch23.addConstraint(Sketcher.Constraint("DistanceX", 1, 1, 1, 2, 10.0))
sketch23.addConstraint(Sketcher.Constraint("DistanceX", 0, 2, -1, 1, 5.0))
sketch23.addConstraint(Sketcher.Constraint("DistanceY", -1, 1, 0, 2, 26.0))
pad20 = body5.newObject("PartDesign::Pad", "Pad019")
pad20.Profile = sketch23
pad20.Length = 2.5
body6 = doc.addObject("PartDesign::Body", "Body005")
body6.AllowCompound = True

# Sketch on XZ plane
sketch24 = body6.newObject("Sketcher::SketchObject", "Sketch023")
sketch24.AttachmentSupport = (doc.getObject("XZ_Plane005"), [""])
sketch24.MapMode = "FlatFace"
sketch24.AttachmentOffset = App.Placement(Vector(0, 0, -25), App.Rotation())
sketch24.addGeometry(Part.Circle(Vector(0, -21, 0), Vector(0, 0, 1), 2), False)
sketch24.addGeometry(Part.Circle(Vector(0, 21, 0), Vector(0, 0, 1), 2), False)
sketch24.addConstraint(Sketcher.Constraint("Equal", 0, 1))
sketch24.addConstraint(Sketcher.Constraint("Symmetric", 0, 3, 1, 3, -1, 1))
sketch24.addConstraint(Sketcher.Constraint("PointOnObject", 0, 3, -2))
sketch24.addConstraint(Sketcher.Constraint("Diameter", 0, 4.0))
sketch24.addConstraint(Sketcher.Constraint("DistanceY", 0, 3, -1, 1, 21.0))
pad21 = body6.newObject("PartDesign::Pad", "Pad020")
pad21.Profile = sketch24
pad21.Length = 2.5
doc.recompute()

body7 = doc.addObject("PartDesign::Body", "Body006")
body7.BaseFeature = body6
boolean3 = body4.newObject("PartDesign::Boolean", "Boolean002")
boolean3.Type = "Cut"
boolean3.addObjects([body7])
doc.recompute()

boolean4 = body5.newObject("PartDesign::Boolean", "Boolean003")
boolean4.Type = "Cut"
boolean4.addObjects([body6])

doc.recompute()
